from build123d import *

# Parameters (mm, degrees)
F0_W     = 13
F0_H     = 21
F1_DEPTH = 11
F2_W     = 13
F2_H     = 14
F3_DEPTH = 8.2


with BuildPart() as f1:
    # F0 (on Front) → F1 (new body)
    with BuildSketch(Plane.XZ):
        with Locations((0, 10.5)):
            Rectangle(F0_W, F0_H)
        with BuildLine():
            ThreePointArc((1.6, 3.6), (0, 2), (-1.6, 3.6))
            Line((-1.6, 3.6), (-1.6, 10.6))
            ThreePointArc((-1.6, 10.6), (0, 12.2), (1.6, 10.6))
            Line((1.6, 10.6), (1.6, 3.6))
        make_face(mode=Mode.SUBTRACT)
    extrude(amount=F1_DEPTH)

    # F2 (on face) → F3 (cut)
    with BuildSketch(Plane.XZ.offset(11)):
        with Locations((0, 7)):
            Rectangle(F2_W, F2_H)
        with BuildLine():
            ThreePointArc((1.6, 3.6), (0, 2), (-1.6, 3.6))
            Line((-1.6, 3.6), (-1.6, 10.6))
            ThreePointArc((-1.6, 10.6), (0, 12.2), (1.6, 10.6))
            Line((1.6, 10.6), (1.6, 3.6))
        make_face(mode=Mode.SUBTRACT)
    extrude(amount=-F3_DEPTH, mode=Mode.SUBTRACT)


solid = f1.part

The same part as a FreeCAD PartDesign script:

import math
import FreeCAD as App
import Part
import Sketcher
from FreeCAD import Vector

doc = App.newDocument("Part")
body = doc.addObject("PartDesign::Body", "Body")

sketch1 = doc.addObject("Sketcher::SketchObject", "Sketch")
body.addObject(sketch1)
sketch1.AttachmentSupport = (doc.XZ_Plane, [""])
sketch1.MapMode = "FlatFace"
sketch1.addGeometry(Part.LineSegment(Vector(-6.5, 21, 0), Vector(-6.5, 0, 0)), False)
sketch1.addGeometry(Part.LineSegment(Vector(-6.5, 0, 0), Vector(6.5, 0, 0)), False)
sketch1.addGeometry(Part.LineSegment(Vector(6.5, 0, 0), Vector(6.5, 21, 0)), False)
sketch1.addGeometry(Part.LineSegment(Vector(6.5, 21, 0), Vector(-6.5, 21, 0)), False)
sketch1.addGeometry(Part.LineSegment(Vector(1.6, 10.6, 0), Vector(1.6, 3.6, 0)), False)
sketch1.addGeometry(Part.ArcOfCircle(Part.Circle(Vector(0, 3.6, 0), Vector(0, 0, 1), 1.6), math.radians(180), math.radians(360)), False)
sketch1.addGeometry(Part.LineSegment(Vector(-1.6, 3.6, 0), Vector(-1.6, 10.6, 0)), False)
sketch1.addGeometry(Part.ArcOfCircle(Part.Circle(Vector(0, 10.6, 0), Vector(0, 0, 1), 1.6), math.radians(0), math.radians(180)), False)
sketch1.addConstraint(Sketcher.Constraint("Coincident", 0, 2, 1, 1))
sketch1.addConstraint(Sketcher.Constraint("Coincident", 1, 2, 2, 1))
sketch1.addConstraint(Sketcher.Constraint("Coincident", 2, 2, 3, 1))
sketch1.addConstraint(Sketcher.Constraint("Coincident", 3, 2, 0, 1))
sketch1.addConstraint(Sketcher.Constraint("Tangent", 4, 2, 5, 2))
sketch1.addConstraint(Sketcher.Constraint("Tangent", 5, 1, 6, 1))
sketch1.addConstraint(Sketcher.Constraint("Tangent", 6, 2, 7, 2))
sketch1.addConstraint(Sketcher.Constraint("Tangent", 7, 1, 4, 1))
sketch1.addConstraint(Sketcher.Constraint("Vertical", 0))
sketch1.addConstraint(Sketcher.Constraint("Horizontal", 1))
sketch1.addConstraint(Sketcher.Constraint("Vertical", 2))
sketch1.addConstraint(Sketcher.Constraint("Horizontal", 3))
sketch1.addConstraint(Sketcher.Constraint("Vertical", 4))
sketch1.addConstraint(Sketcher.Constraint("Vertical", 6))
sketch1.addConstraint(Sketcher.Constraint("Symmetric", 0, 2, 1, 2, -1, 1))
sketch1.addConstraint(Sketcher.Constraint("PointOnObject", 5, 3, -2))
sketch1.addConstraint(Sketcher.Constraint("Radius", 5, 1.6))
sketch1.addConstraint(Sketcher.Constraint("DistanceX", 1, 1, 1, 2, 13.0))
sketch1.addConstraint(Sketcher.Constraint("DistanceY", 0, 2, 0, 1, 21.0))
sketch1.addConstraint(Sketcher.Constraint("DistanceY", 4, 2, 4, 1, 7.0))
sketch1.addConstraint(Sketcher.Constraint("DistanceY", -1, 1, 5, 3, 3.6))
pad1 = doc.addObject("PartDesign::Pad", "Pad")
body.addObject(pad1)
pad1.Profile = sketch1
pad1.Length = 11

sketch2 = doc.addObject("Sketcher::SketchObject", "Sketch001")
body.addObject(sketch2)
sketch2.AttachmentSupport = (doc.XZ_Plane, [""])
sketch2.MapMode = "FlatFace"
sketch2.AttachmentOffset = App.Placement(Vector(0, 0, 11), App.Rotation())
sketch2.addGeometry(Part.LineSegment(Vector(-6.5, 14, 0), Vector(-6.5, 0, 0)), False)
sketch2.addGeometry(Part.LineSegment(Vector(-6.5, 0, 0), Vector(6.5, 0, 0)), False)
sketch2.addGeometry(Part.LineSegment(Vector(6.5, 0, 0), Vector(6.5, 14, 0)), False)
sketch2.addGeometry(Part.LineSegment(Vector(6.5, 14, 0), Vector(-6.5, 14, 0)), False)
sketch2.addGeometry(Part.LineSegment(Vector(1.6, 10.6, 0), Vector(1.6, 3.6, 0)), False)
sketch2.addGeometry(Part.ArcOfCircle(Part.Circle(Vector(0, 3.6, 0), Vector(0, 0, 1), 1.6), math.radians(180), math.radians(360)), False)
sketch2.addGeometry(Part.LineSegment(Vector(-1.6, 3.6, 0), Vector(-1.6, 10.6, 0)), False)
sketch2.addGeometry(Part.ArcOfCircle(Part.Circle(Vector(0, 10.6, 0), Vector(0, 0, 1), 1.6), math.radians(0), math.radians(180)), False)
sketch2.addConstraint(Sketcher.Constraint("Coincident", 0, 2, 1, 1))
sketch2.addConstraint(Sketcher.Constraint("Coincident", 1, 2, 2, 1))
sketch2.addConstraint(Sketcher.Constraint("Coincident", 2, 2, 3, 1))
sketch2.addConstraint(Sketcher.Constraint("Coincident", 3, 2, 0, 1))
sketch2.addConstraint(Sketcher.Constraint("Tangent", 4, 2, 5, 2))
sketch2.addConstraint(Sketcher.Constraint("Tangent", 5, 1, 6, 1))
sketch2.addConstraint(Sketcher.Constraint("Tangent", 6, 2, 7, 2))
sketch2.addConstraint(Sketcher.Constraint("Tangent", 7, 1, 4, 1))
sketch2.addConstraint(Sketcher.Constraint("Vertical", 0))
sketch2.addConstraint(Sketcher.Constraint("Horizontal", 1))
sketch2.addConstraint(Sketcher.Constraint("Vertical", 2))
sketch2.addConstraint(Sketcher.Constraint("Horizontal", 3))
sketch2.addConstraint(Sketcher.Constraint("Vertical", 4))
sketch2.addConstraint(Sketcher.Constraint("Vertical", 6))
sketch2.addConstraint(Sketcher.Constraint("Symmetric", 0, 2, 1, 2, -1, 1))
sketch2.addConstraint(Sketcher.Constraint("PointOnObject", 5, 3, -2))
sketch2.addConstraint(Sketcher.Constraint("Radius", 5, 1.6))
sketch2.addConstraint(Sketcher.Constraint("DistanceX", 1, 1, 1, 2, 13.0))
sketch2.addConstraint(Sketcher.Constraint("DistanceY", 0, 2, 0, 1, 14.0))
sketch2.addConstraint(Sketcher.Constraint("DistanceY", 4, 2, 4, 1, 7.0))
sketch2.addConstraint(Sketcher.Constraint("DistanceY", -1, 1, 5, 3, 3.6))
pocket1 = doc.addObject("PartDesign::Pocket", "Pocket")
body.addObject(pocket1)
pocket1.Profile = sketch2
pocket1.Length = 8.2

doc.recompute()
